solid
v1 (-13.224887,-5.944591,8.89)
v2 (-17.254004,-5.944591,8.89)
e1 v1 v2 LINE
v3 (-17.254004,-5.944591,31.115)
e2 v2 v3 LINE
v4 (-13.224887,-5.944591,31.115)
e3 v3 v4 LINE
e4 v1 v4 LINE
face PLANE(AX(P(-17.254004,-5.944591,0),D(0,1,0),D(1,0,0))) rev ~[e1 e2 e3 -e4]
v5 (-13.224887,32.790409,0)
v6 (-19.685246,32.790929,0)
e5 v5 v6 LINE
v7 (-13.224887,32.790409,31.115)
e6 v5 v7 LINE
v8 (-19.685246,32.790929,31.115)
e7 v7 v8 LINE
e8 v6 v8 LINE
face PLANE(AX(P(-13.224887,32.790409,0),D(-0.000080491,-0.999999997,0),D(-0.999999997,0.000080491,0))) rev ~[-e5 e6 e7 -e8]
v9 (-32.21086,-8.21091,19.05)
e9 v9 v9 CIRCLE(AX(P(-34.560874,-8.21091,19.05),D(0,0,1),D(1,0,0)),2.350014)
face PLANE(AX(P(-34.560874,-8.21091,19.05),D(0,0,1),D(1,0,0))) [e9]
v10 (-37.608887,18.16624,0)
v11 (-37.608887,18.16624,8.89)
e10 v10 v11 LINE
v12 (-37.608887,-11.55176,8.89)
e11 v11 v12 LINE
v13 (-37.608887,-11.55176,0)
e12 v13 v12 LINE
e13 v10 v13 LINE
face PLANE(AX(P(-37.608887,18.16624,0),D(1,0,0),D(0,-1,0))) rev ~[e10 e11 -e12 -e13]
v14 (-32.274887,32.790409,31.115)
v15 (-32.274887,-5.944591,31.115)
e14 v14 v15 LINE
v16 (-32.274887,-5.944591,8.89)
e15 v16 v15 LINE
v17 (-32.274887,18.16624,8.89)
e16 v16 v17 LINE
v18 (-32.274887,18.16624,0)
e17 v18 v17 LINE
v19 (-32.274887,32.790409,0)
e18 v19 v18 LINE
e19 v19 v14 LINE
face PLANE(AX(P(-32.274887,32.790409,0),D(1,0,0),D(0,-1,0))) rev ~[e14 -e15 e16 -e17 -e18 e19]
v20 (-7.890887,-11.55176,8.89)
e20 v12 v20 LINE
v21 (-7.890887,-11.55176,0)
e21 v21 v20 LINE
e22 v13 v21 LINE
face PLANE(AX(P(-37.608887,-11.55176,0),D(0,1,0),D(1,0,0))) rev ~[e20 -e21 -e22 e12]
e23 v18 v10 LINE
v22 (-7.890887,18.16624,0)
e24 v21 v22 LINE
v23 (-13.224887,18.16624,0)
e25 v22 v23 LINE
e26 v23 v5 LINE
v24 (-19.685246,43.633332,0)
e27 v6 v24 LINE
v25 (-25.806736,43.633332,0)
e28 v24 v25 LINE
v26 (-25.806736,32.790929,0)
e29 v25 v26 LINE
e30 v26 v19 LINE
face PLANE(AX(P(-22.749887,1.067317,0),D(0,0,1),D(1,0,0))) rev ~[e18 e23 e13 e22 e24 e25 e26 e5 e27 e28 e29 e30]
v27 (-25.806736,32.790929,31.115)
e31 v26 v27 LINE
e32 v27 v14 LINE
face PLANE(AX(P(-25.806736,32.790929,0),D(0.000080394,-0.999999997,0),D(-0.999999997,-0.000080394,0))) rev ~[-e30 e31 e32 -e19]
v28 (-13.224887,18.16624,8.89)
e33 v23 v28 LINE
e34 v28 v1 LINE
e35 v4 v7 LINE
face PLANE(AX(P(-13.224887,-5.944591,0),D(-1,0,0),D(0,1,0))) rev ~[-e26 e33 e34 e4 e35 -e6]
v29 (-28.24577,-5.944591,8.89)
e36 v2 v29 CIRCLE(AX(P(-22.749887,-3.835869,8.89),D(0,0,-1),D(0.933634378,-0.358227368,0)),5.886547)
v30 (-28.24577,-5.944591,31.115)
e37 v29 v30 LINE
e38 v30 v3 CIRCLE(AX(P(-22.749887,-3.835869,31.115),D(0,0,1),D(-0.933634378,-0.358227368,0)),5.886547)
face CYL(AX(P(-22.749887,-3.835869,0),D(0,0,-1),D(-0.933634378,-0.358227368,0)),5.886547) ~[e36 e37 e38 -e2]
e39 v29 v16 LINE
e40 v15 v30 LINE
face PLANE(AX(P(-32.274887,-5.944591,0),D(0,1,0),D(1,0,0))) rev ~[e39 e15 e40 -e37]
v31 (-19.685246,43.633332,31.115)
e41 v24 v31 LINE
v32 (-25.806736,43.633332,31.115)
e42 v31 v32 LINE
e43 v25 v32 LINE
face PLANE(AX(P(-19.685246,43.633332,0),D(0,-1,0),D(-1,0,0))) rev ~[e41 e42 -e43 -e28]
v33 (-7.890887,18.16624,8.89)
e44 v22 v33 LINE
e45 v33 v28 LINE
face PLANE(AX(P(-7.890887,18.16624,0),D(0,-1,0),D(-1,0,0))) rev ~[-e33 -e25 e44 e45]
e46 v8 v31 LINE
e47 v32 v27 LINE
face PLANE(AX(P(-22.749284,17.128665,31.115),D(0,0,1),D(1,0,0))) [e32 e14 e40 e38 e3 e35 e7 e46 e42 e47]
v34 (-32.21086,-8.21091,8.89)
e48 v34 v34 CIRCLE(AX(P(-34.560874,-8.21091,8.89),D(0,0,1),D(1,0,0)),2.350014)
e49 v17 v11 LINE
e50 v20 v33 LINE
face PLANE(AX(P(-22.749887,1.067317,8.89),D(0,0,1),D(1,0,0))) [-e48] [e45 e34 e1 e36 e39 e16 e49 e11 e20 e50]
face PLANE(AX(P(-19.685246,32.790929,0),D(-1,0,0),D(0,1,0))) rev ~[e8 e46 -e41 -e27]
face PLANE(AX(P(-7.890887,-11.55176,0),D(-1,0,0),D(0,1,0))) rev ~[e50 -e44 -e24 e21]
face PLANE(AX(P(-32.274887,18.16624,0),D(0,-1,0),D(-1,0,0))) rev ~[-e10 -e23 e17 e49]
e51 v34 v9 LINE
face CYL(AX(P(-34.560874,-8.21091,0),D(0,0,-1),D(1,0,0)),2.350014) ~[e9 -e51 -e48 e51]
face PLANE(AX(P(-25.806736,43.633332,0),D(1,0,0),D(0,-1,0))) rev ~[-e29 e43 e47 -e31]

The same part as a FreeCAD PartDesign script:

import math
import FreeCAD as App
import Part
import Sketcher
Q = App.Units.Quantity

doc = App.newDocument("Part")
params = doc.addObject("Spreadsheet::Sheet", "Params")
for row, (alias, value) in enumerate([
    ("sketch1_height", "1.525 in"),
    ("pad1_length", "1.225 in"),
    ("sketch2_width", "1.17 in"),
    ("sketch2_width2", "0.21 in"),
    ("pad2_length", "0.35 in"),
    ("pad3_length", "0.75 in"),
], start=1):
    params.set(f"A{row}", alias)
    params.set(f"B{row}", "=" + value)
    params.setAlias(f"B{row}", alias)

body = doc.addObject("PartDesign::Body", "Body")

# Sketch on XY plane
sketch1 = doc.addObject("Sketcher::SketchObject", "Sketch")
body.addObject(sketch1)
sketch1.AttachmentSupport = (doc.XY_Plane, [""])
sketch1.MapMode = "FlatFace"
sketch1.addGeometry([
    Part.LineSegment(App.Vector(-32.3, 32.8, 0), App.Vector(-32.3, -5.9, 0)),  # 0
    Part.LineSegment(App.Vector(-32.3, -5.9, 0), App.Vector(-28.2, -5.9, 0)),  # 1
    Part.ArcOfCircle(Part.Circle(App.Vector(-22.7, -3.8, 0), App.Vector(0, 0, 1), 5.9), math.radians(-159), math.radians(-21)),  # 2
    Part.LineSegment(App.Vector(-17.3, -5.9, 0), App.Vector(-13.2, -5.9, 0)),  # 3
    Part.LineSegment(App.Vector(-13.2, -5.9, 0), App.Vector(-13.2, 32.8, 0)),  # 4
    Part.LineSegment(App.Vector(-13.2, 32.8, 0), App.Vector(-19.7, 32.8, 0)),  # 5
    Part.LineSegment(App.Vector(-19.7, 32.8, 0), App.Vector(-19.7, 43.6, 0)),  # 6
    Part.LineSegment(App.Vector(-19.7, 43.6, 0), App.Vector(-25.8, 43.6, 0)),  # 7
    Part.LineSegment(App.Vector(-25.8, 43.6, 0), App.Vector(-25.8, 32.8, 0)),  # 8
    Part.LineSegment(App.Vector(-25.8, 32.8, 0), App.Vector(-32.3, 32.8, 0)),  # 9
], False)
sketch1.addConstraint([
    Sketcher.Constraint("Coincident", 0, 2, 1, 1),
    Sketcher.Constraint("Coincident", 1, 2, 2, 1),
    Sketcher.Constraint("Coincident", 2, 2, 3, 1),
    Sketcher.Constraint("Coincident", 3, 2, 4, 1),
    Sketcher.Constraint("Coincident", 4, 2, 5, 1),
    Sketcher.Constraint("Coincident", 5, 2, 6, 1),
    Sketcher.Constraint("Coincident", 6, 2, 7, 1),
    Sketcher.Constraint("Coincident", 7, 2, 8, 1),
    Sketcher.Constraint("Coincident", 8, 2, 9, 1),
    Sketcher.Constraint("Coincident", 9, 2, 0, 1),
    Sketcher.Constraint("Vertical", 0),
    Sketcher.Constraint("Horizontal", 1),
    Sketcher.Constraint("Horizontal", 3),
    Sketcher.Constraint("Vertical", 4),
    Sketcher.Constraint("Vertical", 6),
    Sketcher.Constraint("Horizontal", 7),
    Sketcher.Constraint("Vertical", 8),
    Sketcher.Constraint("Horizontal", 1, 2, 2, 2),
    Sketcher.Constraint("Horizontal", 5, 2, 8, 2),
    Sketcher.Constraint("Horizontal", 4, 2, 9, 2),
    Sketcher.Constraint("Equal", 1, 3),
    Sketcher.Constraint("DistanceY", 0, 2, 0, 1, Q("1.525 in")),
    Sketcher.Constraint("DistanceX", 0, 2, 3, 2, Q("0.75 in")),
    Sketcher.Constraint("DistanceY", 2, 3, 5, 2, Q("1.4419999 in")),
    Sketcher.Constraint("Radius", 2, 5.886547),
    Sketcher.Constraint("DistanceX", 7, 2, 7, 1, 6.12149),
    Sketcher.Constraint("DistanceY", 2, 3, 6, 2, 47.469201),
    Sketcher.Constraint("Distance", 5, 6.460359),
    Sketcher.Constraint("DistanceX", 1, 1, 1, 2, 4.029117),
    Sketcher.Constraint("DistanceY", 2, 3, -1, 1, 3.835869),
    Sketcher.Constraint("DistanceX", 1, 2, -1, 1, 28.24577),
])
sketch1.setExpression("Constraints[21]", "Params.sketch1_height")
pad1 = doc.addObject("PartDesign::Pad", "Pad")
body.addObject(pad1)
pad1.Profile = sketch1
pad1.setExpression("Length", "Params.pad1_length")

# Sketch on XY plane
sketch2 = doc.addObject("Sketcher::SketchObject", "Sketch001")
body.addObject(sketch2)
sketch2.AttachmentSupport = (doc.XY_Plane, [""])
sketch2.MapMode = "FlatFace"
sketch2.addGeometry([
    Part.LineSegment(App.Vector(-37.6, 18.2, 0), App.Vector(-37.6, -11.6, 0)),  # 0
    Part.LineSegment(App.Vector(-37.6, -11.6, 0), App.Vector(-7.9, -11.6, 0)),  # 1
    Part.LineSegment(App.Vector(-7.9, -11.6, 0), App.Vector(-7.9, 18.2, 0)),  # 2
    Part.LineSegment(App.Vector(-7.9, 18.2, 0), App.Vector(-13.2, 18.2, 0)),  # 3
    Part.LineSegment(App.Vector(-13.2, 18.2, 0), App.Vector(-13.2, -5.9, 0)),  # 4
    Part.LineSegment(App.Vector(-13.2, -5.9, 0), App.Vector(-17.3, -5.9, 0)),  # 5
    Part.ArcOfCircle(Part.Circle(App.Vector(-22.7, -3.8, 0), App.Vector(0, 0, 1), 5.9), math.radians(-159), math.radians(-21)),  # 6
    Part.LineSegment(App.Vector(-28.2, -5.9, 0), App.Vector(-32.3, -5.9, 0)),  # 7
    Part.LineSegment(App.Vector(-32.3, -5.9, 0), App.Vector(-32.3, 18.2, 0)),  # 8
    Part.LineSegment(App.Vector(-32.3, 18.2, 0), App.Vector(-37.6, 18.2, 0)),  # 9
    Part.Circle(App.Vector(-34.6, -8.2, 0), App.Vector(0, 0, 1), 2.4),  # 10
], False)
sketch2.addConstraint([
    Sketcher.Constraint("Coincident", 0, 2, 1, 1),
    Sketcher.Constraint("Coincident", 1, 2, 2, 1),
    Sketcher.Constraint("Coincident", 2, 2, 3, 1),
    Sketcher.Constraint("Coincident", 3, 2, 4, 1),
    Sketcher.Constraint("Coincident", 4, 2, 5, 1),
    Sketcher.Constraint("Coincident", 5, 2, 6, 2),
    Sketcher.Constraint("Coincident", 6, 1, 7, 1),
    Sketcher.Constraint("Coincident", 7, 2, 8, 1),
    Sketcher.Constraint("Coincident", 8, 2, 9, 1),
    Sketcher.Constraint("Coincident", 9, 2, 0, 1),
    Sketcher.Constraint("Vertical", 0),
    Sketcher.Constraint("Horizontal", 1),
    Sketcher.Constraint("Vertical", 2),
    Sketcher.Constraint("Horizontal", 3),
    Sketcher.Constraint("Vertical", 4),
    Sketcher.Constraint("Horizontal", 5),
    Sketcher.Constraint("Horizontal", 7),
    Sketcher.Constraint("Vertical", 8),
    Sketcher.Constraint("Horizontal", 9),
    Sketcher.Constraint("Horizontal", 5, 2, 6, 1),
    Sketcher.Constraint("Horizontal", 3, 2, 8, 2),
    Sketcher.Constraint("Equal", 5, 7),
    Sketcher.Constraint("Equal", 3, 9),
    Sketcher.Constraint("Equal", 1, 0),
    Sketcher.Constraint("DistanceX", 1, 1, 1, 2, Q("1.17 in")),
    Sketcher.Constraint("DistanceX", 3, 2, 3, 1, Q("0.21 in")),
    Sketcher.Constraint("Diameter", 10, 4.700028),
    Sketcher.Constraint("Radius", 6, 5.886547),
    Sketcher.Constraint("DistanceY", 4, 2, 4, 1, 24.110831),
    Sketcher.Constraint("DistanceX", 5, 2, 5, 1, 4.029117),
    Sketcher.Constraint("DistanceY", 6, 3, -1, 1, 3.835869),
    Sketcher.Constraint("DistanceY", 10, 3, -1, 1, 8.21091),
    Sketcher.Constraint("DistanceX", 6, 1, -1, 1, 28.24577),
    Sketcher.Constraint("DistanceX", 10, 3, 5, 2, 17.30687),
])
sketch2.setExpression("Constraints[24]", "Params.sketch2_width")
sketch2.setExpression("Constraints[25]", "Params.sketch2_width2")
pad2 = doc.addObject("PartDesign::Pad", "Pad001")
body.addObject(pad2)
pad2.Profile = sketch2
pad2.setExpression("Length", "Params.pad2_length")

# Sketch on XY plane
sketch3 = doc.addObject("Sketcher::SketchObject", "Sketch002")
body.addObject(sketch3)
sketch3.AttachmentSupport = (doc.XY_Plane, [""])
sketch3.MapMode = "FlatFace"
sketch3.addGeometry(Part.Circle(App.Vector(-34.6, -8.2, 0), App.Vector(0, 0, 1), 2.4), False)
sketch3.addConstraint([
    Sketcher.Constraint("Diameter", 0, 4.700028),
    Sketcher.Constraint("DistanceY", 0, 3, -1, 1, 8.21091),
    Sketcher.Constraint("DistanceX", 0, 3, -1, 1, 34.560874),
])
pad3 = doc.addObject("PartDesign::Pad", "Pad002")
body.addObject(pad3)
pad3.Profile = sketch3
pad3.setExpression("Length", "Params.pad3_length")

doc.recompute()
